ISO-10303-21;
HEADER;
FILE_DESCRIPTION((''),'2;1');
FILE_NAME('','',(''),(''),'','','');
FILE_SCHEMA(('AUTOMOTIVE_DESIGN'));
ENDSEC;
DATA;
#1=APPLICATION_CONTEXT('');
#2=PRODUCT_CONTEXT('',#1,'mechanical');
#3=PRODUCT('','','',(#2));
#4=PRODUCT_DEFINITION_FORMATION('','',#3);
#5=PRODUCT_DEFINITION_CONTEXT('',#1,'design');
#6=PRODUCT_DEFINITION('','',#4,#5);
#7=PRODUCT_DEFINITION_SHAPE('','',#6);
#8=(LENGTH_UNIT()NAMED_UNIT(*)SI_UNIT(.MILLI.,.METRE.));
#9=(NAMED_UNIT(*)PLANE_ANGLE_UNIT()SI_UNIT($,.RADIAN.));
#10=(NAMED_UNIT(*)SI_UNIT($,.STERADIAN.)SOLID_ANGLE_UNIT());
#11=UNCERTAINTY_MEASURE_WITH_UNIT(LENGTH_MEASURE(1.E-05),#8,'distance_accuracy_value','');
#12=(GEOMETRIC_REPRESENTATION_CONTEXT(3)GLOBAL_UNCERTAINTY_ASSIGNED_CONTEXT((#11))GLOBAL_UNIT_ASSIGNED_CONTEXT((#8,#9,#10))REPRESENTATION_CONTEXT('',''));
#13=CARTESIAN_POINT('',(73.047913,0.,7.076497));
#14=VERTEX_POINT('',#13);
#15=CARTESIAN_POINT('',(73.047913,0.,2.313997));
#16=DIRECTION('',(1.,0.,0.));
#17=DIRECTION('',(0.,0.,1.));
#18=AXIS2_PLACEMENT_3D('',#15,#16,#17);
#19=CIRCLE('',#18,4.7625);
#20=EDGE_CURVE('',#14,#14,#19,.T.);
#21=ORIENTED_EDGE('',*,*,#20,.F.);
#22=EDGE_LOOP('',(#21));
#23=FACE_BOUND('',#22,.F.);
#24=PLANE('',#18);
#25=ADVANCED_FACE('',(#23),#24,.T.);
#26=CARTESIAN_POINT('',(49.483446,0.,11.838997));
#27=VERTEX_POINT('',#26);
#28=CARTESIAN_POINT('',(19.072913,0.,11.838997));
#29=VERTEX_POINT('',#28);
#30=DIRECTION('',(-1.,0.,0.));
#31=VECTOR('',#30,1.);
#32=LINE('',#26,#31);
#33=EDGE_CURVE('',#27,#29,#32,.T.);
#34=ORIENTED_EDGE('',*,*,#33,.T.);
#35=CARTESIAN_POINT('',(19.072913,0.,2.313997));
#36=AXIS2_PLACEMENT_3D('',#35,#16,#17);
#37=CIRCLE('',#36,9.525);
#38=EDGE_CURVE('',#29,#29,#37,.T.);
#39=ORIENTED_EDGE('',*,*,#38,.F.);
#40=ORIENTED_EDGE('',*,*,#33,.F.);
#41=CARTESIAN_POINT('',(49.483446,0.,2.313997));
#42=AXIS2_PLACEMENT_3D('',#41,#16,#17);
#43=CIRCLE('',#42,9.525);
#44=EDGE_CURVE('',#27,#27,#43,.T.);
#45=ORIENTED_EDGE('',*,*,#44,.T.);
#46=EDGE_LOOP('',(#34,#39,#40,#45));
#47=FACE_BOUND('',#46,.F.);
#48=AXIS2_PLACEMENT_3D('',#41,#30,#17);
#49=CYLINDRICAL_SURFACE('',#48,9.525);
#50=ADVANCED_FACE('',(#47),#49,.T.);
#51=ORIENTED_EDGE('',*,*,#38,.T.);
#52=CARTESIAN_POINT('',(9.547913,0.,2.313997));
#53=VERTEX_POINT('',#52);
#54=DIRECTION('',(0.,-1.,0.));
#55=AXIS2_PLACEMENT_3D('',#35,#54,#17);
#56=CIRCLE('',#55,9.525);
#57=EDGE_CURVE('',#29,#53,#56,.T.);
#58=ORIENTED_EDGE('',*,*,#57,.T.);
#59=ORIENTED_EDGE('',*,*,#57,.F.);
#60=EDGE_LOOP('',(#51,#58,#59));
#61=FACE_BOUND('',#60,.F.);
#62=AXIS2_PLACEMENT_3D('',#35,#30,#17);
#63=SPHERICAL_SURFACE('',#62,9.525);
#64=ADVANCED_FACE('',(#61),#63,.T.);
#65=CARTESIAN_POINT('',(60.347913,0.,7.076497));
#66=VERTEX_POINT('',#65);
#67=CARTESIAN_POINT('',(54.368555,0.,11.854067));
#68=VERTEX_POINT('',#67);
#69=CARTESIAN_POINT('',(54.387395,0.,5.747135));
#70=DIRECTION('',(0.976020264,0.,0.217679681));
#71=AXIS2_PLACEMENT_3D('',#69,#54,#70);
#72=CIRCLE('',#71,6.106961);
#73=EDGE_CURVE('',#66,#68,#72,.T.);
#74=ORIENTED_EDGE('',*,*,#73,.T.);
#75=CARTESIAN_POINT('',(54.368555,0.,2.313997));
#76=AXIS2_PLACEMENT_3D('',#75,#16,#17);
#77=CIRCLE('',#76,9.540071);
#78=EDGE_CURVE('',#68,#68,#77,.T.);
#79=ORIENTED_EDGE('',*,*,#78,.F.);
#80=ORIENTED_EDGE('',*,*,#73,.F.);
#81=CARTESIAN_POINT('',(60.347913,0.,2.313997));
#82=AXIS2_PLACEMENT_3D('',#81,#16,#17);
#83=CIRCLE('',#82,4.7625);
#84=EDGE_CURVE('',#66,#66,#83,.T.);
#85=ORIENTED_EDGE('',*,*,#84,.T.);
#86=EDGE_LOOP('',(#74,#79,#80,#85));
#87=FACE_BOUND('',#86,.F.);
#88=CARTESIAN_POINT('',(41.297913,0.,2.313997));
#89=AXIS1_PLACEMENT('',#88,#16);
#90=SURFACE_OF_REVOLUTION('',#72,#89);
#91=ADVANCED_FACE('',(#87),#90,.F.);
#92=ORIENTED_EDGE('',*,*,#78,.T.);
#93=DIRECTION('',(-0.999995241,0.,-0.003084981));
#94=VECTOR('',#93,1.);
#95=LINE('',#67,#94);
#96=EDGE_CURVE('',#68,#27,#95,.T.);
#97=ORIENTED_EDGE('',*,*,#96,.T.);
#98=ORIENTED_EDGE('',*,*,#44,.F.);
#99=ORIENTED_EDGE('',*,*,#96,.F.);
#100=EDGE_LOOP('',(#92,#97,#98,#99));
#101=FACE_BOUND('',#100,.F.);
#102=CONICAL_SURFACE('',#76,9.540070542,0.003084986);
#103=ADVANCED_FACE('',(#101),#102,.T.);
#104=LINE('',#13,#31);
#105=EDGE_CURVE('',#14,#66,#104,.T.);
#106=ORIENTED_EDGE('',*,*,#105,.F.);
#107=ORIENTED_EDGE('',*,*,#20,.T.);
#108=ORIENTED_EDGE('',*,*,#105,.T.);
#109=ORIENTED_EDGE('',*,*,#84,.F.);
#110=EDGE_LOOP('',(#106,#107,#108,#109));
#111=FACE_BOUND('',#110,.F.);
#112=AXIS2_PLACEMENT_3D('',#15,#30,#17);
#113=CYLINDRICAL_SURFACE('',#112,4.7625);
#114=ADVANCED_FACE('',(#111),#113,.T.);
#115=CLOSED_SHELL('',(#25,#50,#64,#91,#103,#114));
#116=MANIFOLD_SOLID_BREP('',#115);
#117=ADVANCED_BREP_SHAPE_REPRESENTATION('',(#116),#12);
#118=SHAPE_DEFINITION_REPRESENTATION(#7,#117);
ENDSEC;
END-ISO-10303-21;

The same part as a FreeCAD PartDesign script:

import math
import FreeCAD as App
import Part
import Sketcher

V = App.Vector
Q = App.Units.Quantity


def edges_at(feature, points):
    """Names of the edges that pass closest to the given points."""
    edges = feature.Shape.Edges
    near = lambda p: min(range(len(edges)), key=lambda i: edges[i].distToShape(Part.Vertex(*p))[0])
    return sorted({f"Edge{near(p) + 1}" for p in points})

doc = App.newDocument("Part")
body = doc.addObject("PartDesign::Body", "Body")

# Sketch on XZ plane
sketch1 = body.newObject("Sketcher::SketchObject", "Sketch")
sketch1.AttachmentSupport = (doc.getObject("XZ_Plane"), [""])
sketch1.MapMode = "FlatFace"
sketch1.addGeometry([
    Part.ArcOfCircle(Part.Circle(V(54.4, 5.7, 0), V(0, 0, 1), 6.1), math.radians(13), math.radians(90)),  # 0
    Part.LineSegment(V(54.4, 11.9, 0), V(49.5, 11.8, 0)),  # 1
    Part.LineSegment(V(49.5, 11.8, 0), V(9.5, 11.8, 0)),  # 2
    Part.LineSegment(V(9.5, 11.8, 0), V(9.5, 2.3, 0)),  # 3
    Part.LineSegment(V(9.5, 2.3, 0), V(73, 2.3, 0)),  # 4
    Part.LineSegment(V(73, 2.3, 0), V(73, 7.1, 0)),  # 5
    Part.LineSegment(V(73, 7.1, 0), V(60.3, 7.1, 0)),  # 6
], False)
sketch1.addGeometry(Part.LineSegment(V(9.5, 2.3, 0), V(73, 2.3, 0)), True)  # axis
sketch1.addConstraint([
    Sketcher.Constraint("Tangent", 0, 2, 1, 1),
    Sketcher.Constraint("Coincident", 1, 2, 2, 1),
    Sketcher.Constraint("Coincident", 2, 2, 3, 1),
    Sketcher.Constraint("Coincident", 3, 2, 4, 1),
    Sketcher.Constraint("Coincident", 4, 2, 5, 1),
    Sketcher.Constraint("Coincident", 5, 2, 6, 1),
    Sketcher.Constraint("Coincident", 6, 2, 0, 1),
    Sketcher.Constraint("Horizontal", 2),
    Sketcher.Constraint("Vertical", 3),
    Sketcher.Constraint("Horizontal", 4),
    Sketcher.Constraint("Vertical", 5),
    Sketcher.Constraint("Horizontal", 6),
    Sketcher.Constraint("Horizontal", 7),
    Sketcher.Constraint("Coincident", 7, 1, 3, 2),
    Sketcher.Constraint("Vertical", 5, 2, 7, 2),
    Sketcher.Constraint("DistanceX", 4, 1, 4, 2, Q("2.5 in")),
    Sketcher.Constraint("DistanceX", 6, 2, 6, 1, Q("0.5 in")),
    Sketcher.Constraint("DistanceY", 3, 2, 3, 1, Q("0.375 in")),
    Sketcher.Constraint("DistanceY", 5, 1, 5, 2, Q("0.1875 in")),
    Sketcher.Constraint("Radius", 0, Q("6.106961 mm")),
    Sketcher.Constraint("DistanceX", 2, 2, 2, 1, Q("39.935534 mm")),
    Sketcher.Constraint("DistanceX", 0, 2, 0, 3, Q("0.01884 mm")),
    Sketcher.Constraint("DistanceX", -1, 1, 0, 3, Q("54.387395 mm")),
    Sketcher.Constraint("DistanceY", -1, 1, 0, 3, Q("5.747135 mm")),
])
revolution = body.newObject("PartDesign::Revolution", "Revolution")
revolution.Profile = sketch1
revolution.ReferenceAxis = (sketch1, ["Axis0"])
revolution.Angle = 360
doc.recompute()

fillet = body.newObject("PartDesign::Fillet", "Fillet")
fillet.Base = (revolution, edges_at(revolution, [(9.548, 0, -7.211)]))
fillet.Radius = Q("0.375 in")

doc.recompute()
